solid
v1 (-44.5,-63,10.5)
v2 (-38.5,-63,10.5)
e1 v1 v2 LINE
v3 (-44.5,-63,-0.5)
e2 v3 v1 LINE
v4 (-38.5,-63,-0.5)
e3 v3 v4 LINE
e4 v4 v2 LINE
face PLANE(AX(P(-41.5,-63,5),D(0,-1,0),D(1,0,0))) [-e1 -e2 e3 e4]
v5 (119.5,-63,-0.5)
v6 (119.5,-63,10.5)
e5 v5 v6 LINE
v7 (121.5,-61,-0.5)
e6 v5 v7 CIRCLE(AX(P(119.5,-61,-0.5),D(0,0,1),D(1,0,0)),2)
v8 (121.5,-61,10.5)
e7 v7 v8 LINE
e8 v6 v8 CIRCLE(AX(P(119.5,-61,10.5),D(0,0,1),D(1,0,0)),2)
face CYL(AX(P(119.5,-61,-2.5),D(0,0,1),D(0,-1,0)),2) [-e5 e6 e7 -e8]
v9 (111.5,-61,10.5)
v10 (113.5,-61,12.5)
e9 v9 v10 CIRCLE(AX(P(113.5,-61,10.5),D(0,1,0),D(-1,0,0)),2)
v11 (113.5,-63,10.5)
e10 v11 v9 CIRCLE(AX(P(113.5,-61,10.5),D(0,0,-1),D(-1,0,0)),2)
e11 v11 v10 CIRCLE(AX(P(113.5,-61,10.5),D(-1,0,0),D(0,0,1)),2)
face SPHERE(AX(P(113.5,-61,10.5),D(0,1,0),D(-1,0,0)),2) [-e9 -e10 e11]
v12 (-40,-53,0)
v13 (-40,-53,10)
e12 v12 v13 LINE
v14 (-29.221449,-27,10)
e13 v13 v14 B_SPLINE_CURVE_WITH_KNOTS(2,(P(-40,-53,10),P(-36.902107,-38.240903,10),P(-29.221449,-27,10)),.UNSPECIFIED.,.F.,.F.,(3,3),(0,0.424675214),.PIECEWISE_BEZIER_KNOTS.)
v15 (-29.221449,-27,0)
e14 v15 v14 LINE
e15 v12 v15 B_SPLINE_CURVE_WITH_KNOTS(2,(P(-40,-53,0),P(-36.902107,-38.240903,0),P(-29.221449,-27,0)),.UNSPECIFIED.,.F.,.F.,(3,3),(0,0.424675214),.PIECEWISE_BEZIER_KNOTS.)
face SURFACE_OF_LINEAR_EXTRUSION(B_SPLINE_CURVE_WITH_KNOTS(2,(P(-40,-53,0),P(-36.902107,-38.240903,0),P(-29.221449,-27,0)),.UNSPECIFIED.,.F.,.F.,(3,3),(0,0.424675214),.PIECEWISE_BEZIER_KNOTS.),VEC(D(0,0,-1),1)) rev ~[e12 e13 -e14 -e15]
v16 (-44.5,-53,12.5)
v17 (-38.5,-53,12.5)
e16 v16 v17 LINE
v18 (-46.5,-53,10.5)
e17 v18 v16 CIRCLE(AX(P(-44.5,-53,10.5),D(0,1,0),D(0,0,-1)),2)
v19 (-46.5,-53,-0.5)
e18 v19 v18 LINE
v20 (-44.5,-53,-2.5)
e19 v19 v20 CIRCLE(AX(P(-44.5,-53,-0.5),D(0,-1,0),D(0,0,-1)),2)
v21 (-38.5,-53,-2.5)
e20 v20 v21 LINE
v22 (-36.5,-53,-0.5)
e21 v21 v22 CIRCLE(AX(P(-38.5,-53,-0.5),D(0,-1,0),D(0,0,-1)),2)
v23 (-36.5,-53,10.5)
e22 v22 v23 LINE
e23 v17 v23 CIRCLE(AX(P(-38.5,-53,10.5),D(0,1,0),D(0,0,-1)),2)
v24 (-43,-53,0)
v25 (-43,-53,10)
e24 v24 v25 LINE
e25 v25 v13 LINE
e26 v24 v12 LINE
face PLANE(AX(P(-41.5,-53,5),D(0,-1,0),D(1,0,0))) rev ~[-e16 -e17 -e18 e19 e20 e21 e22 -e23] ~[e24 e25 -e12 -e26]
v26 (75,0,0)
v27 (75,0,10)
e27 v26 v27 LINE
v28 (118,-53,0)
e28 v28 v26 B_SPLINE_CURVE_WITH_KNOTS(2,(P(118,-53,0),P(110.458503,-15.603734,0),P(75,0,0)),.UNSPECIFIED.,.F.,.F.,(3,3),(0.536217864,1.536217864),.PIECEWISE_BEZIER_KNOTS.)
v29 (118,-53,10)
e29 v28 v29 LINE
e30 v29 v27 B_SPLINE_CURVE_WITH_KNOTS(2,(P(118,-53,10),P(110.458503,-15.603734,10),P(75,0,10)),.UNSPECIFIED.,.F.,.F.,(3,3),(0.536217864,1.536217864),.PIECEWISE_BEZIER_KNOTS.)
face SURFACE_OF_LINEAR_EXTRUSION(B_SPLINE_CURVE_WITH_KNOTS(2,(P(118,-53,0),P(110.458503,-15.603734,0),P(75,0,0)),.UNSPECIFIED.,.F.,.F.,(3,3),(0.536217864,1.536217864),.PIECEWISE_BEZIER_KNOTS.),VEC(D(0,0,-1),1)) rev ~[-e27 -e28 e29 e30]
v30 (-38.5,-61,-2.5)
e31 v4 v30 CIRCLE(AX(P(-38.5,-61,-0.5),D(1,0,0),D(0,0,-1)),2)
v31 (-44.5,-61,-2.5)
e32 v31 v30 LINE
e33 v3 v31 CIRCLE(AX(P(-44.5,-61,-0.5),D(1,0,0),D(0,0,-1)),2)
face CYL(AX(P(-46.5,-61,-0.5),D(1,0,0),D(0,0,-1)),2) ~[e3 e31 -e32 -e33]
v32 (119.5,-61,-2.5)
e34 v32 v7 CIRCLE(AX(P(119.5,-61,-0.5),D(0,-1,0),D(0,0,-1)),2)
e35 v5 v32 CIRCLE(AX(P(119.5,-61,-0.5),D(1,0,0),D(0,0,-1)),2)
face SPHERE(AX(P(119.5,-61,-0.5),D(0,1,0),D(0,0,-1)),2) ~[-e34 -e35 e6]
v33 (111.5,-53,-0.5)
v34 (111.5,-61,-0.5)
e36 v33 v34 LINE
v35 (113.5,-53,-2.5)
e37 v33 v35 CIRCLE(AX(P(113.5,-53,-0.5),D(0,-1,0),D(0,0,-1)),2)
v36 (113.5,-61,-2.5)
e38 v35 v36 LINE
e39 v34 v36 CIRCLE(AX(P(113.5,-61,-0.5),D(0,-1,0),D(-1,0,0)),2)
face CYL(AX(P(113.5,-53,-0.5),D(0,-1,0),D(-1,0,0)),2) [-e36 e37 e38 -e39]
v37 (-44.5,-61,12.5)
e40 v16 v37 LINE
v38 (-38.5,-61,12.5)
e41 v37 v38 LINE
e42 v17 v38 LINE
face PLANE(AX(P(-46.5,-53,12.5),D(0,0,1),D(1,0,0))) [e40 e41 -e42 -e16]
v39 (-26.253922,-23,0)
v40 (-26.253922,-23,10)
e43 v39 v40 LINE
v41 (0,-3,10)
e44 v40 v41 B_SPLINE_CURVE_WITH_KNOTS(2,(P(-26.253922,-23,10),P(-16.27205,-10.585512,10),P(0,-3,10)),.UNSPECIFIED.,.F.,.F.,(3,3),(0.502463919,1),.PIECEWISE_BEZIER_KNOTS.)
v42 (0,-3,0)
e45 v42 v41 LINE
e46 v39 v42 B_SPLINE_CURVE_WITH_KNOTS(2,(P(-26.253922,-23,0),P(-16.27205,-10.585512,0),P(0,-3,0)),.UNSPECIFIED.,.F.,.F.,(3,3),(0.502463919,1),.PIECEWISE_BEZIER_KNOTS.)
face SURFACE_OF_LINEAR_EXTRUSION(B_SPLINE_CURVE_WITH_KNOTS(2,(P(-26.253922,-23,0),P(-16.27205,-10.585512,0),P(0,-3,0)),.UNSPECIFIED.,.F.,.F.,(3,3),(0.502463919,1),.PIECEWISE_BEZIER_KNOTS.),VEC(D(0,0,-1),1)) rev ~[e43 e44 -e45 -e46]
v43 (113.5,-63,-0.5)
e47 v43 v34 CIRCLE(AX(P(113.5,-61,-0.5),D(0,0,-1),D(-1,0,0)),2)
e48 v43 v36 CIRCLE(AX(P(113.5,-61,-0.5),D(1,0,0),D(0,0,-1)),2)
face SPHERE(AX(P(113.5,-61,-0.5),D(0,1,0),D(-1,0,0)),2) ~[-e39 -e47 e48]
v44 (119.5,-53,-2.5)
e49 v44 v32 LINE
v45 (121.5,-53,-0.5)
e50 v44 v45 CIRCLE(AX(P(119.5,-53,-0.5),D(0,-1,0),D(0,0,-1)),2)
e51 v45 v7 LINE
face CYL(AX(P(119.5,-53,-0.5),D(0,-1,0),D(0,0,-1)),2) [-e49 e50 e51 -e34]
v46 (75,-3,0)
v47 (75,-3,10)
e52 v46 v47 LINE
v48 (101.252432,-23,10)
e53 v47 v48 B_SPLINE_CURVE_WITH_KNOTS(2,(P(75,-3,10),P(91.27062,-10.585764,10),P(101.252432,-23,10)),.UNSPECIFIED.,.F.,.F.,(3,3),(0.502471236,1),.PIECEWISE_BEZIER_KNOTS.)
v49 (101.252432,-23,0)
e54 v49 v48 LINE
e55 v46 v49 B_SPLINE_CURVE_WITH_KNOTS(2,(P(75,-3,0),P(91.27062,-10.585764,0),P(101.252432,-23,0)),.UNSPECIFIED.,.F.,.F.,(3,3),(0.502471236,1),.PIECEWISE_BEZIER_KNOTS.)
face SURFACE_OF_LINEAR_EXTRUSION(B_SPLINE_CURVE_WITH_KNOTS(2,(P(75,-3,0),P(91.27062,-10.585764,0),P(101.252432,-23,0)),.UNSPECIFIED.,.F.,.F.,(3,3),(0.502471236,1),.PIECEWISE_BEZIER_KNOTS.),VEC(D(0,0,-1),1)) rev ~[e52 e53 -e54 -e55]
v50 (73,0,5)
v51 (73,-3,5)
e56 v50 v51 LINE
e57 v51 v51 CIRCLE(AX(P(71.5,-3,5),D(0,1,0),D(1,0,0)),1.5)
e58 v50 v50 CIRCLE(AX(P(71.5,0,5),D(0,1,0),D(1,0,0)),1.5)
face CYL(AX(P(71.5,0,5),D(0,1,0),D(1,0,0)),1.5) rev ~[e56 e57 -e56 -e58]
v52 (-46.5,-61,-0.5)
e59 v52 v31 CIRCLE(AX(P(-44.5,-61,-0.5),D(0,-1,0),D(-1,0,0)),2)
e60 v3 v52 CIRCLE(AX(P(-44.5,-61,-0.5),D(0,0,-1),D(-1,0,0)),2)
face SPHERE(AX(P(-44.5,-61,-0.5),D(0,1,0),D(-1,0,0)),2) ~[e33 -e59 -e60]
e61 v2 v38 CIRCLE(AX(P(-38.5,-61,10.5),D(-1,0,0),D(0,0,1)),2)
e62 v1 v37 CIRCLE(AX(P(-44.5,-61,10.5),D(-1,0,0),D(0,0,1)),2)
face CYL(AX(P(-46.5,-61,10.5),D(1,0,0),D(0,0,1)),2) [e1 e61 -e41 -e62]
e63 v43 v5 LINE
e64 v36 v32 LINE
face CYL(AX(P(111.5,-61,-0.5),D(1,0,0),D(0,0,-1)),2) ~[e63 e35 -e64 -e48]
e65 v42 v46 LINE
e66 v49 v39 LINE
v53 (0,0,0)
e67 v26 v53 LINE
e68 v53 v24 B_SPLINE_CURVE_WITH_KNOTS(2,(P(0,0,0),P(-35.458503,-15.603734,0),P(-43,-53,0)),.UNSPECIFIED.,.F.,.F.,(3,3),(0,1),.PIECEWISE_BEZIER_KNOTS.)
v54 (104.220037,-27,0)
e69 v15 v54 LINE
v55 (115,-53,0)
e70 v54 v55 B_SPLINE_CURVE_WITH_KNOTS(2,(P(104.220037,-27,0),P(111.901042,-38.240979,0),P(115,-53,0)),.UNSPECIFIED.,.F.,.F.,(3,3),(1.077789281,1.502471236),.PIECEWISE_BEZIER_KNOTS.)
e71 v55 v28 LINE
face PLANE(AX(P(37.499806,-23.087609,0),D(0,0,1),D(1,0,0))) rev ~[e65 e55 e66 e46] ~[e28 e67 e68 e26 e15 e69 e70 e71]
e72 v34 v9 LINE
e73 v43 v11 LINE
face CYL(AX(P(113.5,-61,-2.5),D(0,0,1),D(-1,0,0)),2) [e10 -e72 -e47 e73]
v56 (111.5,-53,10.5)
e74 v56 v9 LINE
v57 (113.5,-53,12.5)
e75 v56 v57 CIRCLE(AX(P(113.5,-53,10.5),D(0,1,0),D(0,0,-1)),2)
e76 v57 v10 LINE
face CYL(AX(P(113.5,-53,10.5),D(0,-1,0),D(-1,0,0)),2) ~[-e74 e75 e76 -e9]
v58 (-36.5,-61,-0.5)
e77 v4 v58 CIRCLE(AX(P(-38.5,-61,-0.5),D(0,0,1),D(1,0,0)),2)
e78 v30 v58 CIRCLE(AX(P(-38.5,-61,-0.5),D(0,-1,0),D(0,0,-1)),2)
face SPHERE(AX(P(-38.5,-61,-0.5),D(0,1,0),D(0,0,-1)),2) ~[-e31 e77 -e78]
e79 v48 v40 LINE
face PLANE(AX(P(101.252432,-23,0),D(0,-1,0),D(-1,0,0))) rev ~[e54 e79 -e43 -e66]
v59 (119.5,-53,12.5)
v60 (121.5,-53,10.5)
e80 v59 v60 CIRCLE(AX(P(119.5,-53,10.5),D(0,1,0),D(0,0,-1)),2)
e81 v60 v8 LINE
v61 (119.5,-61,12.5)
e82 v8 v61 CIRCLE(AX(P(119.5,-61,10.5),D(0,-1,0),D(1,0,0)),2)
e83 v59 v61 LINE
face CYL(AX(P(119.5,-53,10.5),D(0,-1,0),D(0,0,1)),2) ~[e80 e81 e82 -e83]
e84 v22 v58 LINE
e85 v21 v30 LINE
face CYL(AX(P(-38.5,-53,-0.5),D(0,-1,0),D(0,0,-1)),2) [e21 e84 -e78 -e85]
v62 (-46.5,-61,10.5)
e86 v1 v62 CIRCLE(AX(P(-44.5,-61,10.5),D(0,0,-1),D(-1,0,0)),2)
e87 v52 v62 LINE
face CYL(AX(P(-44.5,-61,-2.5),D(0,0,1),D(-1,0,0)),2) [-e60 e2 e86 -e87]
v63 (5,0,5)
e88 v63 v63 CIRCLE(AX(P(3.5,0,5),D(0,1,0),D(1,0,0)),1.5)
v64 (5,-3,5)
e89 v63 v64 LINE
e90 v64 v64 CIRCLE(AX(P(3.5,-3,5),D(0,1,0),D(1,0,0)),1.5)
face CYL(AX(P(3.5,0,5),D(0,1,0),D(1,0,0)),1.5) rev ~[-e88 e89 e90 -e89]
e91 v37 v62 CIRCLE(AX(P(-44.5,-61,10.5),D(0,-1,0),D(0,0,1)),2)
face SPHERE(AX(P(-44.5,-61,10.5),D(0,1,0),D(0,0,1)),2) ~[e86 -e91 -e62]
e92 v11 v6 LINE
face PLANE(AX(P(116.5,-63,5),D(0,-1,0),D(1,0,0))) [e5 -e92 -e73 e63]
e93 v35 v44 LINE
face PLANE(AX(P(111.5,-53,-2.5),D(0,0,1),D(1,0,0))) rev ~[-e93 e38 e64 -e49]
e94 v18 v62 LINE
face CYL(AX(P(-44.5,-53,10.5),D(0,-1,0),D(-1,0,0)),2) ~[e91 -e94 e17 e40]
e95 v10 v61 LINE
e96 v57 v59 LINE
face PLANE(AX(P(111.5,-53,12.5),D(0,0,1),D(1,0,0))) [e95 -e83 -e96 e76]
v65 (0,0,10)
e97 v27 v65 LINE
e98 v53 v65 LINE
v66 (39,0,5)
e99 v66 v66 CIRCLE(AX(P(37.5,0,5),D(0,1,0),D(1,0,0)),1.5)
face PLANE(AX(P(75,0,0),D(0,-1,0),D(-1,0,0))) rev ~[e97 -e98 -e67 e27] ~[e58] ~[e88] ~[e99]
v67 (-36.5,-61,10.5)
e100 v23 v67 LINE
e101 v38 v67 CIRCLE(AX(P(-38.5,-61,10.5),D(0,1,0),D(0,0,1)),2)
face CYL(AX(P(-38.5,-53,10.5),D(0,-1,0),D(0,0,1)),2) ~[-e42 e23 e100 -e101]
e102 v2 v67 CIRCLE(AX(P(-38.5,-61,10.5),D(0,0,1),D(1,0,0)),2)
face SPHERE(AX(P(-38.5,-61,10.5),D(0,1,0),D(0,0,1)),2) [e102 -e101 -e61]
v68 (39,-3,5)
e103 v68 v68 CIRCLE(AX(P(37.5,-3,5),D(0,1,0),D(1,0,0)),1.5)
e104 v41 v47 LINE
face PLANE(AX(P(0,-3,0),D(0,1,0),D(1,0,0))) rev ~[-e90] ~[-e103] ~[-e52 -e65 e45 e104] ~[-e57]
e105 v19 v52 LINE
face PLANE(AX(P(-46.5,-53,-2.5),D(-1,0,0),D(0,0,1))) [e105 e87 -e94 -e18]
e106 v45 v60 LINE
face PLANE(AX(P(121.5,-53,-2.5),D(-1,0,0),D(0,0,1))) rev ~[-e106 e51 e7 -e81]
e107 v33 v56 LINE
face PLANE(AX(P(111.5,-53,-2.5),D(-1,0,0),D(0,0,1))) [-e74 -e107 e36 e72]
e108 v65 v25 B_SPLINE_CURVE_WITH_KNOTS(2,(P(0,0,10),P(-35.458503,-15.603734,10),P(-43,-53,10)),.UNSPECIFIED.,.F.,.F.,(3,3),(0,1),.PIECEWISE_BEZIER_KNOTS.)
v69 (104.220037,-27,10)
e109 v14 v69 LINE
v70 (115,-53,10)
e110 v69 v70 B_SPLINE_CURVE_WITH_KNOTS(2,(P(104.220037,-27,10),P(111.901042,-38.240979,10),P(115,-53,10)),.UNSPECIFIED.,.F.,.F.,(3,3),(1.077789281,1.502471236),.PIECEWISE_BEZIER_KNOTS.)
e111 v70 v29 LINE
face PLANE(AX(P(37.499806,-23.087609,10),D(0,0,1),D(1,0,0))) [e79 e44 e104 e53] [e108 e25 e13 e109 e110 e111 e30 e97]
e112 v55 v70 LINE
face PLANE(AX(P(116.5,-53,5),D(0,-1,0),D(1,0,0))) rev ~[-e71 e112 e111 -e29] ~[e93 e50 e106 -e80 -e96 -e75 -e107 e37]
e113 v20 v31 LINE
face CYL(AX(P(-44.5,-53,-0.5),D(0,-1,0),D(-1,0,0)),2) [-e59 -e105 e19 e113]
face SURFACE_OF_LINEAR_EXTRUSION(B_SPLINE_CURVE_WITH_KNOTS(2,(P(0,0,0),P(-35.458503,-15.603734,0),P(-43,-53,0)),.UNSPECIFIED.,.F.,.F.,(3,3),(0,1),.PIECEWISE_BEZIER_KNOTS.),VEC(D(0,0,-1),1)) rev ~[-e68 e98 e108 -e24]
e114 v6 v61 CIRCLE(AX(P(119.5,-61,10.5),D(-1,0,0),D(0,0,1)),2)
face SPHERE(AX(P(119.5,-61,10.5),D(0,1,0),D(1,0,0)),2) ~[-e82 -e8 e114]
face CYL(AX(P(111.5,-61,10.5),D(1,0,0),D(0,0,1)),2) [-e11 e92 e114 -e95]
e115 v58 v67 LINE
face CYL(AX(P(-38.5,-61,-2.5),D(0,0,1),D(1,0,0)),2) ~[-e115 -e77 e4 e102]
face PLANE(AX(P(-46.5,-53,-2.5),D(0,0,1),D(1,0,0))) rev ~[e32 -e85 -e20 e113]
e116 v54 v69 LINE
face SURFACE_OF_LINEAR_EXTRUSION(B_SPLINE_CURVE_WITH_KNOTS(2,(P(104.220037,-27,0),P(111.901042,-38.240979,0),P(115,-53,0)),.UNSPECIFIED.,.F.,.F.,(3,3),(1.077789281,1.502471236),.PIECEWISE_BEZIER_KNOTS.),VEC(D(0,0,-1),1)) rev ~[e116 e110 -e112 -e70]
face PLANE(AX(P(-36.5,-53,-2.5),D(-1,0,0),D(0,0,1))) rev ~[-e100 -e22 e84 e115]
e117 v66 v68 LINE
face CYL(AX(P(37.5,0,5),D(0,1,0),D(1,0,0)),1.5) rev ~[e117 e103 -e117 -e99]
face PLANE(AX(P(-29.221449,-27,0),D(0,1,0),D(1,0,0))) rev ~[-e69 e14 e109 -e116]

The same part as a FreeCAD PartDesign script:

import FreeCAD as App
import Part
import Sketcher
from FreeCAD import Vector
Q = App.Units.Quantity


def edges_at(feature, points):
    """Names of the edges that pass closest to the given points."""
    edges = feature.Shape.Edges
    near = lambda p: min(range(len(edges)), key=lambda i: edges[i].distToShape(Part.Vertex(*p))[0])
    return sorted({f"Edge{near(p) + 1}" for p in points})


def add_polygon(sketch, points):
    """Adds a closed chain of lines whose ends are joined by coincident constraints."""
    first, n = sketch.GeometryCount, len(points)
    for a, b in zip(points, points[1:] + points[:1]):
        sketch.addGeometry(Part.LineSegment(App.Vector(*a, 0), App.Vector(*b, 0)), False)
    for i in range(n):
        sketch.addConstraint(Sketcher.Constraint("Coincident", first + i, 2, first + (i + 1) % n, 1))

doc = App.newDocument("Part")
body = doc.addObject("PartDesign::Body", "Body")

sketch1 = body.newObject("Sketcher::SketchObject", "Sketch")
sketch1.AttachmentSupport = (doc.getObject("XY_Plane"), [""])
sketch1.MapMode = "FlatFace"
sketch1.addGeometry(Part.LineSegment(Vector(75, 0, 0), Vector(0, 0, 0)), False)
sketch1.addGeometry(Part.BSplineCurve([Vector(0, 0, 0), Vector(-35.458503, -15.603734, 0), Vector(-43, -53, 0)], [3, 3], [0, 1], False, 2, [1, 1, 1], False), False)
sketch1.addGeometry(Part.LineSegment(Vector(-43, -53, 0), Vector(-40, -53, 0)), False)
sketch1.addGeometry(Part.BSplineCurve([Vector(-40, -53, 0), Vector(-36.902107, -38.240903, 0), Vector(-29.221449, -27, 0)], [3, 3], [0, 0.424675214], False, 2, [1, 1, 1], False), False)
sketch1.addGeometry(Part.LineSegment(Vector(-29.221449, -27, 0), Vector(104.220037, -27, 0)), False)
sketch1.addGeometry(Part.BSplineCurve([Vector(104.220037, -27, 0), Vector(111.901042, -38.240979, 0), Vector(115, -53, 0)], [3, 3], [1.077789281, 1.502471236], False, 2, [1, 1, 1], False), False)
sketch1.addGeometry(Part.LineSegment(Vector(115, -53, 0), Vector(118, -53, 0)), False)
sketch1.addGeometry(Part.BSplineCurve([Vector(118, -53, 0), Vector(110.458503, -15.603734, 0), Vector(75, 0, 0)], [3, 3], [0.536217864, 1.536217864], False, 2, [1, 1, 1], False), False)
sketch1.addGeometry(Part.LineSegment(Vector(101.252432, -23, 0), Vector(-26.253922, -23, 0)), False)
sketch1.addGeometry(Part.BSplineCurve([Vector(-26.253922, -23, 0), Vector(-16.27205, -10.585512, 0), Vector(0, -3, 0)], [3, 3], [0.502463919, 1], False, 2, [1, 1, 1], False), False)
sketch1.addGeometry(Part.LineSegment(Vector(0, -3, 0), Vector(75, -3, 0)), False)
sketch1.addGeometry(Part.BSplineCurve([Vector(75, -3, 0), Vector(91.27062, -10.585764, 0), Vector(101.252432, -23, 0)], [3, 3], [0.502471236, 1], False, 2, [1, 1, 1], False), False)
sketch1.addConstraint(Sketcher.Constraint("Block", 1))
sketch1.addConstraint(Sketcher.Constraint("Block", 3))
sketch1.addConstraint(Sketcher.Constraint("Block", 5))
sketch1.addConstraint(Sketcher.Constraint("Block", 7))
sketch1.addConstraint(Sketcher.Constraint("Block", 9))
sketch1.addConstraint(Sketcher.Constraint("Block", 11))
sketch1.addConstraint(Sketcher.Constraint("Coincident", 0, 2, 1, 1))
sketch1.addConstraint(Sketcher.Constraint("Coincident", 1, 2, 2, 1))
sketch1.addConstraint(Sketcher.Constraint("Coincident", 2, 2, 3, 1))
sketch1.addConstraint(Sketcher.Constraint("Coincident", 3, 2, 4, 1))
sketch1.addConstraint(Sketcher.Constraint("Coincident", 4, 2, 5, 1))
sketch1.addConstraint(Sketcher.Constraint("Coincident", 5, 2, 6, 1))
sketch1.addConstraint(Sketcher.Constraint("Coincident", 6, 2, 7, 1))
sketch1.addConstraint(Sketcher.Constraint("Coincident", 7, 2, 0, 1))
sketch1.addConstraint(Sketcher.Constraint("Coincident", 8, 2, 9, 1))
sketch1.addConstraint(Sketcher.Constraint("Coincident", 9, 2, 10, 1))
sketch1.addConstraint(Sketcher.Constraint("Coincident", 10, 2, 11, 1))
sketch1.addConstraint(Sketcher.Constraint("Coincident", 11, 2, 8, 1))
pad1 = body.newObject("PartDesign::Pad", "Pad")
pad1.Profile = sketch1
pad1.Length = 10

sketch2 = body.newObject("Sketcher::SketchObject", "Sketch001")
sketch2.AttachmentSupport = (doc.getObject("XZ_Plane"), [""])
sketch2.MapMode = "FlatFace"
sketch2.addGeometry(Part.Circle(Vector(71.5, 5, 0), Vector(0, 0, 1), 1.5), False)
sketch2.addGeometry(Part.Circle(Vector(3.5, 5, 0), Vector(0, 0, 1), 1.5), False)
sketch2.addGeometry(Part.Circle(Vector(37.5, 5, 0), Vector(0, 0, 1), 1.5), False)
sketch2.addConstraint(Sketcher.Constraint("Equal", 0, 1))
sketch2.addConstraint(Sketcher.Constraint("Equal", 1, 2))
sketch2.addConstraint(Sketcher.Constraint("Horizontal", 0, 3, 1, 3))
sketch2.addConstraint(Sketcher.Constraint("Horizontal", 1, 3, 2, 3))
sketch2.addConstraint(Sketcher.Constraint("Diameter", 0, Q("3 mm")))
sketch2.addConstraint(Sketcher.Constraint("DistanceY", -1, 1, 0, 3, Q("5 mm")))
sketch2.addConstraint(Sketcher.Constraint("DistanceX", 1, 3, 0, 3, Q("68 mm")))
sketch2.addConstraint(Sketcher.Constraint("DistanceX", 2, 3, 0, 3, Q("34 mm")))
sketch2.addConstraint(Sketcher.Constraint("DistanceX", -1, 1, 0, 3, Q("71.5 mm")))
pocket1 = body.newObject("PartDesign::Pocket", "Pocket")
pocket1.Profile = sketch2
pocket1.Length = 10
pocket1.Reversed = True

sketch3 = body.newObject("Sketcher::SketchObject", "Sketch002")
sketch3.AttachmentSupport = (doc.getObject("XZ_Plane"), [""])
sketch3.MapMode = "FlatFace"
sketch3.AttachmentOffset = App.Placement(Vector(0, 0, 53), App.Rotation())
add_polygon(sketch3, [(112, 12), (112, -2), (122, -2), (122, 12)])
add_polygon(sketch3, [(-46, 12), (-46, -2), (-36, -2), (-36, 12)])
sketch3.addConstraint(Sketcher.Constraint("Vertical", 0))
sketch3.addConstraint(Sketcher.Constraint("Horizontal", 1))
sketch3.addConstraint(Sketcher.Constraint("Vertical", 2))
sketch3.addConstraint(Sketcher.Constraint("Horizontal", 3))
sketch3.addConstraint(Sketcher.Constraint("Vertical", 4))
sketch3.addConstraint(Sketcher.Constraint("Horizontal", 5))
sketch3.addConstraint(Sketcher.Constraint("Vertical", 6))
sketch3.addConstraint(Sketcher.Constraint("Horizontal", 7))
sketch3.addConstraint(Sketcher.Constraint("Horizontal", 1, 2, 4, 2))
sketch3.addConstraint(Sketcher.Constraint("Horizontal", 3, 2, 6, 2))
sketch3.addConstraint(Sketcher.Constraint("Equal", 3, 5))
sketch3.addConstraint(Sketcher.Constraint("DistanceX", 1, 1, 1, 2, Q("10 mm")))
sketch3.addConstraint(Sketcher.Constraint("DistanceY", 0, 2, 0, 1, Q("15 mm")))
sketch3.addConstraint(Sketcher.Constraint("DistanceX", 4, 2, 0, 2, Q("158 mm")))
sketch3.addConstraint(Sketcher.Constraint("DistanceX", -1, 1, 0, 2, Q("111.5 mm")))
sketch3.addConstraint(Sketcher.Constraint("DistanceY", 0, 2, -1, 1, Q("2.5 mm")))
pad2 = body.newObject("PartDesign::Pad", "Pad001")
pad2.Profile = sketch3
pad2.Length = 10
doc.recompute()

fillet = body.newObject("PartDesign::Fillet", "Fillet")
fillet.Base = (pad2, edges_at(pad2, [
    (111.5, -58, 12.5),
    (111.5, -58, -2.5),
    (121.5, -58, -2.5),
    (121.5, -58, 12.5),
    (111.5, -63, 5),
    (116.5, -63, -2.5),
    (121.5, -63, 5),
    (116.5, -63, 12.5),
]))
fillet.Radius = 2
doc.recompute()

fillet2 = body.newObject("PartDesign::Fillet", "Fillet001")
fillet2.Base = (fillet, edges_at(fillet, [
    (-36.5, -58, 12.5),
    (-46.5, -58, 12.5),
    (-46.5, -58, -2.5),
    (-36.5, -58, -2.5),
    (-41.5, -63, 12.5),
    (-46.5, -63, 5),
    (-41.5, -63, -2.5),
    (-36.5, -63, 5),
]))
fillet2.Radius = 2

doc.recompute()
